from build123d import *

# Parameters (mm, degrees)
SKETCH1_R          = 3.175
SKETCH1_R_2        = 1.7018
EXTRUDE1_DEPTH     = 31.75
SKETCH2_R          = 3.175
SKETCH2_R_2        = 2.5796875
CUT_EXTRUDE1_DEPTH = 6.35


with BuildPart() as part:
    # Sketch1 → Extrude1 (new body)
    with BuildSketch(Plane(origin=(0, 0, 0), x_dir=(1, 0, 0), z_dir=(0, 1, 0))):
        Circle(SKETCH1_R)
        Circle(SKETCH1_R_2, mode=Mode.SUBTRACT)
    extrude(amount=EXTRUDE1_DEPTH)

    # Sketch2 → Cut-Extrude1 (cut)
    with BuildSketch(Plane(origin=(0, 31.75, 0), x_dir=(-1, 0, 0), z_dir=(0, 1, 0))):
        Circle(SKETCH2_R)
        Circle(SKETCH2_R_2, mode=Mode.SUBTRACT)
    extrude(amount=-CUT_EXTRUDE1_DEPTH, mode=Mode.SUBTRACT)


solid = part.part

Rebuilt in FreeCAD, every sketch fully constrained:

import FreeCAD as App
import Part
import Sketcher

V = App.Vector
Q = App.Units.Quantity

doc = App.newDocument("Part")
body = doc.addObject("PartDesign::Body", "Body")

# Sketch on XZ plane
sketch1 = body.newObject("Sketcher::SketchObject", "Sketch")
sketch1.AttachmentSupport = (doc.getObject("XZ_Plane"), [""])
sketch1.MapMode = "FlatFace"
sketch1.addGeometry([
    Part.Circle(V(0, 0, 0), V(0, 0, 1), 3.175),
    Part.Circle(V(0, 0, 0), V(0, 0, 1), 1.7018),
], False)
sketch1.addConstraint([
    Sketcher.Constraint("Coincident", 0, 3, -1, 1),
    Sketcher.Constraint("Coincident", 1, 3, -1, 1),
    Sketcher.Constraint("Diameter", 0, Q("0.25 in")),
    Sketcher.Constraint("Diameter", 1, Q("0.134 in")),
])
pad1 = body.newObject("PartDesign::Pad", "Pad")
pad1.Profile = sketch1
pad1.Length = Q("1.25 in")
pad1.Reversed = True

# Sketch on XZ plane
sketch2 = body.newObject("Sketcher::SketchObject", "Sketch001")
sketch2.AttachmentSupport = (doc.getObject("XZ_Plane"), [""])
sketch2.MapMode = "FlatFace"
sketch2.AttachmentOffset = App.Placement(V(0, 0, -1.25 * 25.4), App.Rotation())
sketch2.addGeometry([
    Part.Circle(V(0, 0, 0), V(0, 0, 1), 3.175),
    Part.Circle(V(0, 0, 0), V(0, 0, 1), 2.579687),
], False)
sketch2.addConstraint([
    Sketcher.Constraint("Coincident", 0, 3, -1, 1),
    Sketcher.Constraint("Coincident", 1, 3, -1, 1),
    Sketcher.Constraint("Diameter", 0, Q("0.25 in")),
    Sketcher.Constraint("Diameter", 1, Q("0.203125 in")),
])
pocket1 = body.newObject("PartDesign::Pocket", "Pocket")
pocket1.Profile = sketch2
pocket1.Length = Q("0.25 in")
pocket1.Reversed = True

doc.recompute()
